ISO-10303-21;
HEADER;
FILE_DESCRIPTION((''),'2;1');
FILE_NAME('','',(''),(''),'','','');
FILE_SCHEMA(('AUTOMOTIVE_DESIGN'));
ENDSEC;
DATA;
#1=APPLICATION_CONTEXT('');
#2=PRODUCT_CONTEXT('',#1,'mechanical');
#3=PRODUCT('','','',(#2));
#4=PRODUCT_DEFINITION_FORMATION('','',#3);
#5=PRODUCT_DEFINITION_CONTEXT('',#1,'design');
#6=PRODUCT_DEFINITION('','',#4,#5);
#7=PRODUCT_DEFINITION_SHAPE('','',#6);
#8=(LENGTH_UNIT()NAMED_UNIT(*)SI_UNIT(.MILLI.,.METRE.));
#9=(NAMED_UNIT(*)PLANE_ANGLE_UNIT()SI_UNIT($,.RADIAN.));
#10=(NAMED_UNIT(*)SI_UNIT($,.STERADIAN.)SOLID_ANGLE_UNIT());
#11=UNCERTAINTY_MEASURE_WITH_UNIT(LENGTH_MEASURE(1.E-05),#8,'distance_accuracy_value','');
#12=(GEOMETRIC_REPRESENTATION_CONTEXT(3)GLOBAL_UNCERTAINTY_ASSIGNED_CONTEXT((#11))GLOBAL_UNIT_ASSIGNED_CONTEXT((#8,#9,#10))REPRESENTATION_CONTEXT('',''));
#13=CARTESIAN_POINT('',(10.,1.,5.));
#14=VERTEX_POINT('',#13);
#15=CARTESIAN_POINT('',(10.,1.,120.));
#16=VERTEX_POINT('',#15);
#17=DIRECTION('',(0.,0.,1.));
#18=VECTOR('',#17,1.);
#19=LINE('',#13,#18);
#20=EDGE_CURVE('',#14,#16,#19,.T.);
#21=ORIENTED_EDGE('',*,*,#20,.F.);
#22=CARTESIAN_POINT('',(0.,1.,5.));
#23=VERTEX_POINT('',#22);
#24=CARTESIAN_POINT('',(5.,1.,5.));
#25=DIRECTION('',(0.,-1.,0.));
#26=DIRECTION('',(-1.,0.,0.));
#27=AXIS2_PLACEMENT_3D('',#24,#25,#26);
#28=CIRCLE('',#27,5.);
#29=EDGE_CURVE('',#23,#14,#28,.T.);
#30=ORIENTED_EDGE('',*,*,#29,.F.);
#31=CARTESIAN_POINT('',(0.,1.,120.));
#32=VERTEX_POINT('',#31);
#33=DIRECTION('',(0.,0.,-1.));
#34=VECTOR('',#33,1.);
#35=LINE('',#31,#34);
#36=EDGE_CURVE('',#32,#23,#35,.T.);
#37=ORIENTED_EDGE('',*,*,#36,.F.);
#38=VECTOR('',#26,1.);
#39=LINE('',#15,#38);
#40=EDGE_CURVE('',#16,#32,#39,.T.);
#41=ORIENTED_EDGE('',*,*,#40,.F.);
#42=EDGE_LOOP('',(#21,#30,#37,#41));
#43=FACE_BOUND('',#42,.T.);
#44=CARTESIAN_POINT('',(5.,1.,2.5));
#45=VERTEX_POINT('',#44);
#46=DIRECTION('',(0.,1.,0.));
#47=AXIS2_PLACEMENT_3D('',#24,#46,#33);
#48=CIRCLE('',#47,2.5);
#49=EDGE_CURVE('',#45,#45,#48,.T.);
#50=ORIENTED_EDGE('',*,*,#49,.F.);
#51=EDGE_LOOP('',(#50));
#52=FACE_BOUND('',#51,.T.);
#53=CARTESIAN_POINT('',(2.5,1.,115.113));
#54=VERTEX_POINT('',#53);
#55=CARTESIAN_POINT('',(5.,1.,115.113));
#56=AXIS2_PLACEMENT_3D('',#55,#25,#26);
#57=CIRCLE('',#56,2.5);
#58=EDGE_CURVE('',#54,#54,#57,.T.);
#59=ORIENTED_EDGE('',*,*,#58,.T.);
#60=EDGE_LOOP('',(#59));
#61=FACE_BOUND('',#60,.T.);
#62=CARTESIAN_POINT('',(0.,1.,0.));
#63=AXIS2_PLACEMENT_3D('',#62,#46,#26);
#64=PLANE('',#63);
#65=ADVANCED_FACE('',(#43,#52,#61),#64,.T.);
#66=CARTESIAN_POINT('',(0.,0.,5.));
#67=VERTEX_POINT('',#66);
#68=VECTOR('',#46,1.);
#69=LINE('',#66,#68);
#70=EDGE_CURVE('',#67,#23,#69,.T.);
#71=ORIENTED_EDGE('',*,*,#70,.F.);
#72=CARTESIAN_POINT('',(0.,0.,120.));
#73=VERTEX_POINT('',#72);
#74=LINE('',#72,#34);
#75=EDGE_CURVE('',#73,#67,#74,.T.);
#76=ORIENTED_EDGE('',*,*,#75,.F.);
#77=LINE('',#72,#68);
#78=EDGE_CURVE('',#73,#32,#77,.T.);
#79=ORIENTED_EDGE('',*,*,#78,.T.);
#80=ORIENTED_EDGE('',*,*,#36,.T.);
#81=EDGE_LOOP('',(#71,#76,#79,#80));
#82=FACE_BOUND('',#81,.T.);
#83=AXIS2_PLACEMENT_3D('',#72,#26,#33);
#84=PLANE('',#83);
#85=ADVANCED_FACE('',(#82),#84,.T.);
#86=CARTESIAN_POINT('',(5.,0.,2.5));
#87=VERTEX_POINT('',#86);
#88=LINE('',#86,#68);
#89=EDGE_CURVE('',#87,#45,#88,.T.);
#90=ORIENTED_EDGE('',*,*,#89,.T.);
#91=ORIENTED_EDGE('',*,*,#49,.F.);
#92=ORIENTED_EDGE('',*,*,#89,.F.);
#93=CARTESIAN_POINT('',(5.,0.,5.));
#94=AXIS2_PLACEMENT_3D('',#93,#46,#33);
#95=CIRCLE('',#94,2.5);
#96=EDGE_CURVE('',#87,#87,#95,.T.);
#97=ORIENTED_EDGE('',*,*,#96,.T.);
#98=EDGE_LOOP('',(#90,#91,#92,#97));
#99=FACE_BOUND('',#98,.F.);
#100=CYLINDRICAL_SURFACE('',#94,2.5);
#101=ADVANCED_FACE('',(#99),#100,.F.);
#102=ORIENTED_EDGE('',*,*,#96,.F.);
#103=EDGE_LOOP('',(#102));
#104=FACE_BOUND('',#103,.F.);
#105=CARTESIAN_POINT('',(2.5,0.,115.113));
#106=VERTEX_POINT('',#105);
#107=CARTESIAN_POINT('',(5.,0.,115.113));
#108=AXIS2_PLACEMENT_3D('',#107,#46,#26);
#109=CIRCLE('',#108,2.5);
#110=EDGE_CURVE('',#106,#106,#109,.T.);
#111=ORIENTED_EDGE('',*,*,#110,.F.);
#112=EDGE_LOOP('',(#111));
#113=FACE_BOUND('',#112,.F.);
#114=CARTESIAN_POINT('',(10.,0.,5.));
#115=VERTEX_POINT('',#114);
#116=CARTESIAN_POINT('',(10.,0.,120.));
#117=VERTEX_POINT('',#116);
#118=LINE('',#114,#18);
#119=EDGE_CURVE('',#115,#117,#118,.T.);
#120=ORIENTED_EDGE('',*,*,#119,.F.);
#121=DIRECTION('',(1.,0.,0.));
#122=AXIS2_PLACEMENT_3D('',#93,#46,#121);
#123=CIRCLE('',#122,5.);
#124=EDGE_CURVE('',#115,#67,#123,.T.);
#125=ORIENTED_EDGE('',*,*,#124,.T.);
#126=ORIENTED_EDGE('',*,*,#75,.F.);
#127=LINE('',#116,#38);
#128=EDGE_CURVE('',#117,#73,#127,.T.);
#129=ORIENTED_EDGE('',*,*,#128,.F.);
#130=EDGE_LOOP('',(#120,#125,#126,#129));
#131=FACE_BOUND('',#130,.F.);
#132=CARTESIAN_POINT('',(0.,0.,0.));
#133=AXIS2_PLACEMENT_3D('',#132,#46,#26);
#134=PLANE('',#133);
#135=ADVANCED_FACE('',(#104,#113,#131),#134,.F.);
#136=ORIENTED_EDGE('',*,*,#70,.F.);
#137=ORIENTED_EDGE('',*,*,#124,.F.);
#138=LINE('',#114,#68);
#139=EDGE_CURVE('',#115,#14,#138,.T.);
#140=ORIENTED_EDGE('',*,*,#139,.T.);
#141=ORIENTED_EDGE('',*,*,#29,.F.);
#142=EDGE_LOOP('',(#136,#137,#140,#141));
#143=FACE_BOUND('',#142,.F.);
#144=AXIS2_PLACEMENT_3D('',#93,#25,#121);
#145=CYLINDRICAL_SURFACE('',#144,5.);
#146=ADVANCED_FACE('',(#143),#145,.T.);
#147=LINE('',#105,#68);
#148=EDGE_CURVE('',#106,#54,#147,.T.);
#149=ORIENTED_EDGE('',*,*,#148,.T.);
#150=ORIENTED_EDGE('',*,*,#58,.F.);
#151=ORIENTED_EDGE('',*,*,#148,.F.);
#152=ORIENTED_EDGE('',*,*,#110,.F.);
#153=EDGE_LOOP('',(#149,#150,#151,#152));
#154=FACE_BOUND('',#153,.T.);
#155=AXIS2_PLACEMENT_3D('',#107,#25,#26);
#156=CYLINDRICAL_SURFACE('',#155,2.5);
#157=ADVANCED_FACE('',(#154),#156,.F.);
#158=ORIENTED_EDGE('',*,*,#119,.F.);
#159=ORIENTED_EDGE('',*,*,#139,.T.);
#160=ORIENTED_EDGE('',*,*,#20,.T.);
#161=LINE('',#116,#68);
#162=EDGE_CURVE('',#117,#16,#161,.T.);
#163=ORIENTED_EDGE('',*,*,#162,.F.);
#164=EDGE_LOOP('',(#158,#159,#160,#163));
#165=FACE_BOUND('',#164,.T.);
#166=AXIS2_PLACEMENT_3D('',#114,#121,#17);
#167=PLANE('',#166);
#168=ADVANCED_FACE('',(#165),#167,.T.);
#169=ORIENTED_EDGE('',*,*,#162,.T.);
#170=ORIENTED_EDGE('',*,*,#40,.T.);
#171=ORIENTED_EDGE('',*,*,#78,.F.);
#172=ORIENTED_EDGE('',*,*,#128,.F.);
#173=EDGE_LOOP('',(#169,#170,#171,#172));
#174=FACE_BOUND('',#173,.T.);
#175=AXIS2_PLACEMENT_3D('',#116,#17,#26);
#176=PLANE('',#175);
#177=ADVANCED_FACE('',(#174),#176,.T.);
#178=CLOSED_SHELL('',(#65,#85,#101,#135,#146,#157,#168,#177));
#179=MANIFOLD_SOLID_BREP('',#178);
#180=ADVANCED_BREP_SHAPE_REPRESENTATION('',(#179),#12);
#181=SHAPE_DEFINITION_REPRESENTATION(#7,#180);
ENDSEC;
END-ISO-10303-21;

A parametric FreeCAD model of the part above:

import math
import FreeCAD as App
import Part
import Sketcher
from FreeCAD import Vector

doc = App.newDocument("Part")
body = doc.addObject("PartDesign::Body", "Body")

sketch1 = body.newObject("Sketcher::SketchObject", "Sketch")
sketch1.AttachmentSupport = (doc.getObject("XZ_Plane"), [""])
sketch1.MapMode = "FlatFace"
sketch1.addGeometry(Part.LineSegment(Vector(10, 120, 0), Vector(10, 5, 0)), False)
sketch1.addGeometry(Part.ArcOfCircle(Part.Circle(Vector(5, 5, 0), Vector(0, 0, 1), 5), math.radians(180), math.radians(360)), False)
sketch1.addGeometry(Part.LineSegment(Vector(0, 5, 0), Vector(0, 120, 0)), False)
sketch1.addGeometry(Part.LineSegment(Vector(0, 120, 0), Vector(10, 120, 0)), False)
sketch1.addConstraint(Sketcher.Constraint("Tangent", 0, 2, 1, 2))
sketch1.addConstraint(Sketcher.Constraint("Tangent", 1, 1, 2, 1))
sketch1.addConstraint(Sketcher.Constraint("Coincident", 2, 2, 3, 1))
sketch1.addConstraint(Sketcher.Constraint("Coincident", 3, 2, 0, 1))
sketch1.addConstraint(Sketcher.Constraint("Vertical", 0))
sketch1.addConstraint(Sketcher.Constraint("Vertical", 2))
sketch1.addConstraint(Sketcher.Constraint("Horizontal", 3))
sketch1.addConstraint(Sketcher.Constraint("PointOnObject", 1, 1, -2))
sketch1.addConstraint(Sketcher.Constraint("Radius", 1, 5.0))
sketch1.addConstraint(Sketcher.Constraint("DistanceY", -1, 1, 1, 3, 5.0))
sketch1.addConstraint(Sketcher.Constraint("DistanceY", -1, 1, 2, 2, 120.0))
pad1 = body.newObject("PartDesign::Pad", "Pad")
pad1.Profile = sketch1
pad1.Length = 1
pad1.Reversed = True

sketch2 = body.newObject("Sketcher::SketchObject", "Sketch001")
sketch2.AttachmentSupport = (doc.getObject("XZ_Plane"), [""])
sketch2.MapMode = "FlatFace"
sketch2.addGeometry(Part.Circle(Vector(5, 115.1, 0), Vector(0, 0, 1), 2.5), False)
sketch2.addConstraint(Sketcher.Constraint("Diameter", 0, 5.0))
sketch2.addConstraint(Sketcher.Constraint("DistanceX", -1, 1, 0, 3, 5.0))
sketch2.addConstraint(Sketcher.Constraint("DistanceY", -1, 1, 0, 3, 115.113))
pocket1 = body.newObject("PartDesign::Pocket", "Pocket")
pocket1.Profile = sketch2
pocket1.Length = 10

sketch3 = body.newObject("Sketcher::SketchObject", "Sketch002")
sketch3.AttachmentSupport = (doc.getObject("XZ_Plane"), [""])
sketch3.MapMode = "FlatFace"
sketch3.addGeometry(Part.Circle(Vector(5, 5, 0), Vector(0, 0, 1), 2.5), False)
sketch3.addConstraint(Sketcher.Constraint("Diameter", 0, 5.0))
sketch3.addConstraint(Sketcher.Constraint("DistanceX", -1, 1, 0, 3, 5.0))
sketch3.addConstraint(Sketcher.Constraint("DistanceY", -1, 1, 0, 3, 5.0))
doc.recompute()
hole = body.newObject("PartDesign::Hole", "Hole")
hole.Profile = sketch3
hole.ThreadType = "None"
hole.Diameter = 5
hole.DepthType = "Dimension"
hole.Depth = 8
hole.DrillPoint = "Angled"
hole.DrillPointAngle = 118

doc.recompute()
